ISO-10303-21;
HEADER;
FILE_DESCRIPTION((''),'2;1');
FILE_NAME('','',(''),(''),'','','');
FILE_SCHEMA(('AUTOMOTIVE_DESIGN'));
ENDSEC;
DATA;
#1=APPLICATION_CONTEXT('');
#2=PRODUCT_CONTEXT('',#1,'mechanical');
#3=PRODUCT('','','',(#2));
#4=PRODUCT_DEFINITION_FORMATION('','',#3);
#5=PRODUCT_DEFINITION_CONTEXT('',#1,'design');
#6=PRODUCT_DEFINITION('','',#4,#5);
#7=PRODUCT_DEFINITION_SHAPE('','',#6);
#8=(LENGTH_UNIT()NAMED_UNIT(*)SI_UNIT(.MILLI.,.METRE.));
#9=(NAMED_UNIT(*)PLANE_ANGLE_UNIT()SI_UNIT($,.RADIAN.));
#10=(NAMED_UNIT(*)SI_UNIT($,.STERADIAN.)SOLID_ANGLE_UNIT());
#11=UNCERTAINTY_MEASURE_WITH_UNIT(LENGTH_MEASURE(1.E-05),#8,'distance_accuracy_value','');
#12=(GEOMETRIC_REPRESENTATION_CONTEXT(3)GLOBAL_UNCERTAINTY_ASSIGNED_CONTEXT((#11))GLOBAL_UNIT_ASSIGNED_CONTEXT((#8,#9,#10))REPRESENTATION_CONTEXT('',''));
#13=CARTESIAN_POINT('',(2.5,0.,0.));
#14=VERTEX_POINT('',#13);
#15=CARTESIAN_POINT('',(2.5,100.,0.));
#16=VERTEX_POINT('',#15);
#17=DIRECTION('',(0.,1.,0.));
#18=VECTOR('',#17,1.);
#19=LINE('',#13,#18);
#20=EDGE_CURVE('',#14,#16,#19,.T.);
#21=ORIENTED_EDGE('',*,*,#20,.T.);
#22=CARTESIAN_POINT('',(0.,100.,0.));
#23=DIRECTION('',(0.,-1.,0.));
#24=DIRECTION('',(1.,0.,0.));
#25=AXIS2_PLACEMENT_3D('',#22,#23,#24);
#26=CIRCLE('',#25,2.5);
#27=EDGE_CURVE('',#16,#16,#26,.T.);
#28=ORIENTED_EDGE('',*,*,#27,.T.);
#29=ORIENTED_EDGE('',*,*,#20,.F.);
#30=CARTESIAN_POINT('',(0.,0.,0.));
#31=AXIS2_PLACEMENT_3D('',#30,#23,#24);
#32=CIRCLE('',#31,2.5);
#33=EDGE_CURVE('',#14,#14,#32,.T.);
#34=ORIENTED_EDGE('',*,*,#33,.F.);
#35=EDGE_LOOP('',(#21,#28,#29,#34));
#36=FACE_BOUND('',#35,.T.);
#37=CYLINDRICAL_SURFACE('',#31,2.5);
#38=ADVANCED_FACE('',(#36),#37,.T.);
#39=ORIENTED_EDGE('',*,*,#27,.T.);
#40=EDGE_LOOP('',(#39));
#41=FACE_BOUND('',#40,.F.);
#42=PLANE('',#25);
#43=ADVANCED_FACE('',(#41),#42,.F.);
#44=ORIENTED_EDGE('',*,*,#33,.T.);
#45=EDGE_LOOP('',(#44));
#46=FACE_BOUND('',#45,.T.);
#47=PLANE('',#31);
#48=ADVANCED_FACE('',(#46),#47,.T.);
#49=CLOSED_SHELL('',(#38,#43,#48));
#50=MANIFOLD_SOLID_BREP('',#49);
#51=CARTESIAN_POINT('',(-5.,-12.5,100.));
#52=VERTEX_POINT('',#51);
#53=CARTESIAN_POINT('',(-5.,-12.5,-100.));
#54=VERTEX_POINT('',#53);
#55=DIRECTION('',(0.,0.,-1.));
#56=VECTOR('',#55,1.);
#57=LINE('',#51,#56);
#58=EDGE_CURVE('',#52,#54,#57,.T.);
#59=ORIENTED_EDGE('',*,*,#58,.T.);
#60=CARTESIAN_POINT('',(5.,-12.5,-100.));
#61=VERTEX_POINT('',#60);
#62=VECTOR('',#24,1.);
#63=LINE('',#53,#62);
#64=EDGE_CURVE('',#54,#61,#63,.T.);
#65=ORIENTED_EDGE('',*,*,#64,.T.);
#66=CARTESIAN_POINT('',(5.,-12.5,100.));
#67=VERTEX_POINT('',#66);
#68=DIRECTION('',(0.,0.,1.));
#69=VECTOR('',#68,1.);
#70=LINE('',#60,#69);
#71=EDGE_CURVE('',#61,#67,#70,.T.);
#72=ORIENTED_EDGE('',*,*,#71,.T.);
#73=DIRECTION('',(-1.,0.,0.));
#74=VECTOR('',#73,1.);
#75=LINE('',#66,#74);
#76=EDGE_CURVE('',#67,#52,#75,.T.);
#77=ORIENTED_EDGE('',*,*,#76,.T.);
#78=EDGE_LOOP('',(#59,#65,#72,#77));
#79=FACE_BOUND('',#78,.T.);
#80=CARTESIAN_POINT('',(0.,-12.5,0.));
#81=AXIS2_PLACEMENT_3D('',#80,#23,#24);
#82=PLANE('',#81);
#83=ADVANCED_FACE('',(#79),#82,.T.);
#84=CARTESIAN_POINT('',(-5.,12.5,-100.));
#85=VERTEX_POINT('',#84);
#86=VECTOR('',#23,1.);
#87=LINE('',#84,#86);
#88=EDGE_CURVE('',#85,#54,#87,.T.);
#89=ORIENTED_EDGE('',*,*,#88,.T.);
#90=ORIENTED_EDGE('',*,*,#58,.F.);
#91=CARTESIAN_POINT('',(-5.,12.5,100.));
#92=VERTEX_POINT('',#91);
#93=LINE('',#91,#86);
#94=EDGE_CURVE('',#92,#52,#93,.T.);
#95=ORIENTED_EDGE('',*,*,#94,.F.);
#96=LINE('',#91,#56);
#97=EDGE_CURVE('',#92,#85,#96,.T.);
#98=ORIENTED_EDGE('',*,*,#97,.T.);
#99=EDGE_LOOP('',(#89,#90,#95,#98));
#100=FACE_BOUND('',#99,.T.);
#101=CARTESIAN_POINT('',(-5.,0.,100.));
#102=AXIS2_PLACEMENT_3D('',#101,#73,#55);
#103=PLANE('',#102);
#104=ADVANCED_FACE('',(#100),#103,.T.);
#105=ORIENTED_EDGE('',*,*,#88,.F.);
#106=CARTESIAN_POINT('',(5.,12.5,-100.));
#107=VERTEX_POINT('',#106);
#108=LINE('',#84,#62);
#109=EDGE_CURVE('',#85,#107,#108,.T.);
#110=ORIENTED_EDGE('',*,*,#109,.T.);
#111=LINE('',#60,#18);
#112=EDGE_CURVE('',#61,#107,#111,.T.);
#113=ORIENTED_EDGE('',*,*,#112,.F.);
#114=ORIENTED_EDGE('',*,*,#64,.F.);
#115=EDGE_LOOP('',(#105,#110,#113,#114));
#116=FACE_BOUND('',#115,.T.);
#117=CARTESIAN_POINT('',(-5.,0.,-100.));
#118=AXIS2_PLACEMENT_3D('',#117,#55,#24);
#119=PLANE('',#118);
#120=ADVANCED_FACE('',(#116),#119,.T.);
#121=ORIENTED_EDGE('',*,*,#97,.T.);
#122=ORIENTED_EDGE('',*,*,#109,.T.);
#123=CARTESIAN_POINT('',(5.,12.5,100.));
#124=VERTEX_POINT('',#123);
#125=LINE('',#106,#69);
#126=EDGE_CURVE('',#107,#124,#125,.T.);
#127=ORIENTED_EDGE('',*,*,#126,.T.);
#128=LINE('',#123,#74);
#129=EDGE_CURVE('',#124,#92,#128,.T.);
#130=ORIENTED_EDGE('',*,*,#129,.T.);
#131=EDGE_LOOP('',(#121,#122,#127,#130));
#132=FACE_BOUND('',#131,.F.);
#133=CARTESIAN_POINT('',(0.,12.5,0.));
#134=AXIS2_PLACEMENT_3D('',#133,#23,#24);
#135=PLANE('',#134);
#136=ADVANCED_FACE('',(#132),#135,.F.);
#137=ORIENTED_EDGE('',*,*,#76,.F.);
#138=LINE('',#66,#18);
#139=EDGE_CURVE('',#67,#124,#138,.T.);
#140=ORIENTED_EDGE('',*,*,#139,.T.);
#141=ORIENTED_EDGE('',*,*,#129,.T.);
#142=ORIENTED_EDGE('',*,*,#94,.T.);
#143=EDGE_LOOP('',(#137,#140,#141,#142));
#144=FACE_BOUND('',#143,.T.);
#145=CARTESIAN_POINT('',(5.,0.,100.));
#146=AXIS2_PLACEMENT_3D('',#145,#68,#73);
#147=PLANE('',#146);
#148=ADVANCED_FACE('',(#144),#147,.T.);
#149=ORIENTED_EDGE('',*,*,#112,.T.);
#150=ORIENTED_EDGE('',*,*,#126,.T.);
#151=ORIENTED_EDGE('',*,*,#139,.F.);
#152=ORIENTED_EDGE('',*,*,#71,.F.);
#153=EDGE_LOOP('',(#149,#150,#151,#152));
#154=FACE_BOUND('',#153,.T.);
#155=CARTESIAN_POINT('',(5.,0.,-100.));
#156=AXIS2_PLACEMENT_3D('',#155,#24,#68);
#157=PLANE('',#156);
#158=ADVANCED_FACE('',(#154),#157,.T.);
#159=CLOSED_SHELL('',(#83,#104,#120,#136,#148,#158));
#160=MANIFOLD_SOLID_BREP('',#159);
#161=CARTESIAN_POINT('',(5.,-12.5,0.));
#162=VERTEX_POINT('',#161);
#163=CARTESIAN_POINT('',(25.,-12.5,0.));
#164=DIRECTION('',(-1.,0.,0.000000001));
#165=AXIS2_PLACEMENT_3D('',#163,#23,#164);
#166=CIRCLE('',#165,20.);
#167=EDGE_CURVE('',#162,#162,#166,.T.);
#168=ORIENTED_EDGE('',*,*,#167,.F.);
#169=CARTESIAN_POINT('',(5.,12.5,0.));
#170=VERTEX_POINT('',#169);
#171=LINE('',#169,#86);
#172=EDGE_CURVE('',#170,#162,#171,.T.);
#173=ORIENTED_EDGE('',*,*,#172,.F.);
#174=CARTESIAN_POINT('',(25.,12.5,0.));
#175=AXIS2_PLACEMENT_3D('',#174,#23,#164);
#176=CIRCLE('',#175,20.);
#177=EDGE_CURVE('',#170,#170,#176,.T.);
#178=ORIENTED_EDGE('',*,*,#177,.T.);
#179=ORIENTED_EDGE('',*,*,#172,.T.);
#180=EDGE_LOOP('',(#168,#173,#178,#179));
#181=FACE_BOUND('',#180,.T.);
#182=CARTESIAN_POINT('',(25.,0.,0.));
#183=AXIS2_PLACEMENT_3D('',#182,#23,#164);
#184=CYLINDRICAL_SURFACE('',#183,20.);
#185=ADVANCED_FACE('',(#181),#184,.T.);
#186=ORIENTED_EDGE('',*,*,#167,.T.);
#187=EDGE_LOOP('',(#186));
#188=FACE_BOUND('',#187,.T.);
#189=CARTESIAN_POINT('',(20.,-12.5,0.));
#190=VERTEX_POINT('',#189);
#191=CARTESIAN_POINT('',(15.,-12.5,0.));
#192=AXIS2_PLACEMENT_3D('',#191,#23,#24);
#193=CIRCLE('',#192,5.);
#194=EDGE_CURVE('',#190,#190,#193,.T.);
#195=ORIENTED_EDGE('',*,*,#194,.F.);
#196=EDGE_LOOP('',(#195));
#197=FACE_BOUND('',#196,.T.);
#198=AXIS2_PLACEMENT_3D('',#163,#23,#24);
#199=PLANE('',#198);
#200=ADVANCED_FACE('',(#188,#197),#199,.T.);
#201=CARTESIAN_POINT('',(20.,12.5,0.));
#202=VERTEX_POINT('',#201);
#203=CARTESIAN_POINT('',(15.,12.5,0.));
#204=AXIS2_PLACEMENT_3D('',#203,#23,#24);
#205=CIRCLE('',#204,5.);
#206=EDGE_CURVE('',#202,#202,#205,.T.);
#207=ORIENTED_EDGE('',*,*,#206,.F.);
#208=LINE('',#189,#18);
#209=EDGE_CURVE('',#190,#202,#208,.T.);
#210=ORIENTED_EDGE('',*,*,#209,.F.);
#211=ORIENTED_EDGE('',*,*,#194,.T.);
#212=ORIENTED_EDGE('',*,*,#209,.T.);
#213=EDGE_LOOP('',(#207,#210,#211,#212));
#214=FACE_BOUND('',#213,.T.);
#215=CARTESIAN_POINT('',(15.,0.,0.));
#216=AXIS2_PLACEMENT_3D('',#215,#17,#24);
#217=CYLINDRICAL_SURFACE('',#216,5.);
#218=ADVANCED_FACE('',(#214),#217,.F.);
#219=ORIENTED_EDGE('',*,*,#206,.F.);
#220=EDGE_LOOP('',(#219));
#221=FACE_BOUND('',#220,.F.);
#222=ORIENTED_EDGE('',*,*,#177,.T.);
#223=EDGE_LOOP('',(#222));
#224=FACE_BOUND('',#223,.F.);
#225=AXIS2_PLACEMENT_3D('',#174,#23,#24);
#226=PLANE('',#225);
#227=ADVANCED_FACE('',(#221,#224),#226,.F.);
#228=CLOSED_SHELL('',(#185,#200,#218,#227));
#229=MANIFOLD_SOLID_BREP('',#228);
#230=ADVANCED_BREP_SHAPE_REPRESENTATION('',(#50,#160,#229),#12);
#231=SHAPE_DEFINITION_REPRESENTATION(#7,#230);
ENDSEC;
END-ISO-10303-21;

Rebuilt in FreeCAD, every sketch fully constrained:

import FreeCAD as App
import Part
import Sketcher
Q = App.Units.Quantity


def add_polygon(sketch, points):
    """Adds a closed chain of lines whose ends are joined by coincident constraints."""
    first, n = sketch.GeometryCount, len(points)
    for a, b in zip(points, points[1:] + points[:1]):
        sketch.addGeometry(Part.LineSegment(App.Vector(*a, 0), App.Vector(*b, 0)), False)
    for i in range(n):
        sketch.addConstraint(Sketcher.Constraint("Coincident", first + i, 2, first + (i + 1) % n, 1))

doc = App.newDocument("Part")
params = doc.addObject("Spreadsheet::Sheet", "Params")
for row, (alias, value) in enumerate([
    ("sketch1_width", "10 mm"),
    ("sketch1_height", "200 mm"),
    ("pad1_length", "25 mm"),
    ("sketch2_diameter", "40 mm"),
    ("sketch2_diameter2", "10 mm"),
    ("pad2_length", "25 mm"),
    ("sketch3_diameter", "5 mm"),
    ("pad3_length", "100 mm"),
], start=1):
    params.set(f"A{row}", alias)
    params.set(f"B{row}", "=" + value)
    params.setAlias(f"B{row}", alias)

body = doc.addObject("PartDesign::Body", "Body")

# Sketch on XZ plane
sketch1 = body.newObject("Sketcher::SketchObject", "Sketch")
sketch1.AttachmentSupport = (doc.getObject("XZ_Plane"), [""])
sketch1.MapMode = "FlatFace"
add_polygon(sketch1, [(5, 100), (-5, 100), (-5, -100), (5, -100)])  # lines 0-3
sketch1.addConstraint([
    Sketcher.Constraint("Horizontal", 0),
    Sketcher.Constraint("Vertical", 1),
    Sketcher.Constraint("Horizontal", 2),
    Sketcher.Constraint("Vertical", 3),
    Sketcher.Constraint("Symmetric", 0, 2, 2, 2, -1, 1),
    Sketcher.Constraint("DistanceX", 0, 2, 0, 1, Q("10 mm")),
    Sketcher.Constraint("DistanceY", 1, 2, 1, 1, Q("200 mm")),
])
sketch1.setExpression("Constraints[9]", "Params.sketch1_width")
sketch1.setExpression("Constraints[10]", "Params.sketch1_height")
pad1 = body.newObject("PartDesign::Pad", "Pad")
pad1.Profile = sketch1
pad1.setExpression("Length", "Params.pad1_length")
pad1.Midplane = True
body2 = doc.addObject("PartDesign::Body", "Body001")

# Sketch on XZ plane
sketch2 = body2.newObject("Sketcher::SketchObject", "Sketch001")
sketch2.AttachmentSupport = (doc.getObject("XZ_Plane001"), [""])
sketch2.MapMode = "FlatFace"
sketch2.addGeometry([
    Part.Circle(App.Vector(25, 0, 0), App.Vector(0, 0, 1), 20),
    Part.Circle(App.Vector(15, 0, 0), App.Vector(0, 0, 1), 5),
], False)
sketch2.addConstraint([
    Sketcher.Constraint("PointOnObject", 0, 3, -1),
    Sketcher.Constraint("PointOnObject", 1, 3, -1),
    Sketcher.Constraint("Diameter", 0, Q("40 mm")),
    Sketcher.Constraint("Diameter", 1, Q("10 mm")),
    Sketcher.Constraint("DistanceX", -1, 1, 0, 3, Q("25 mm")),
    Sketcher.Constraint("DistanceX", -1, 1, 1, 3, Q("15 mm")),
])
sketch2.setExpression("Constraints[2]", "Params.sketch2_diameter")
sketch2.setExpression("Constraints[3]", "Params.sketch2_diameter2")
pad2 = body2.newObject("PartDesign::Pad", "Pad001")
pad2.Profile = sketch2
pad2.setExpression("Length", "Params.pad2_length")
pad2.Midplane = True
body3 = doc.addObject("PartDesign::Body", "Body002")

# Sketch on XZ plane
sketch3 = body3.newObject("Sketcher::SketchObject", "Sketch002")
sketch3.AttachmentSupport = (doc.getObject("XZ_Plane002"), [""])
sketch3.MapMode = "FlatFace"
sketch3.addGeometry(Part.Circle(App.Vector(0, 0, 0), App.Vector(0, 0, 1), 2.5), False)
sketch3.addConstraint([
    Sketcher.Constraint("Coincident", 0, 3, -1, 1),
    Sketcher.Constraint("Diameter", 0, Q("5 mm")),
])
sketch3.setExpression("Constraints[1]", "Params.sketch3_diameter")
pad3 = body3.newObject("PartDesign::Pad", "Pad002")
pad3.Profile = sketch3
pad3.setExpression("Length", "Params.pad3_length")
pad3.Reversed = True

doc.recompute()
